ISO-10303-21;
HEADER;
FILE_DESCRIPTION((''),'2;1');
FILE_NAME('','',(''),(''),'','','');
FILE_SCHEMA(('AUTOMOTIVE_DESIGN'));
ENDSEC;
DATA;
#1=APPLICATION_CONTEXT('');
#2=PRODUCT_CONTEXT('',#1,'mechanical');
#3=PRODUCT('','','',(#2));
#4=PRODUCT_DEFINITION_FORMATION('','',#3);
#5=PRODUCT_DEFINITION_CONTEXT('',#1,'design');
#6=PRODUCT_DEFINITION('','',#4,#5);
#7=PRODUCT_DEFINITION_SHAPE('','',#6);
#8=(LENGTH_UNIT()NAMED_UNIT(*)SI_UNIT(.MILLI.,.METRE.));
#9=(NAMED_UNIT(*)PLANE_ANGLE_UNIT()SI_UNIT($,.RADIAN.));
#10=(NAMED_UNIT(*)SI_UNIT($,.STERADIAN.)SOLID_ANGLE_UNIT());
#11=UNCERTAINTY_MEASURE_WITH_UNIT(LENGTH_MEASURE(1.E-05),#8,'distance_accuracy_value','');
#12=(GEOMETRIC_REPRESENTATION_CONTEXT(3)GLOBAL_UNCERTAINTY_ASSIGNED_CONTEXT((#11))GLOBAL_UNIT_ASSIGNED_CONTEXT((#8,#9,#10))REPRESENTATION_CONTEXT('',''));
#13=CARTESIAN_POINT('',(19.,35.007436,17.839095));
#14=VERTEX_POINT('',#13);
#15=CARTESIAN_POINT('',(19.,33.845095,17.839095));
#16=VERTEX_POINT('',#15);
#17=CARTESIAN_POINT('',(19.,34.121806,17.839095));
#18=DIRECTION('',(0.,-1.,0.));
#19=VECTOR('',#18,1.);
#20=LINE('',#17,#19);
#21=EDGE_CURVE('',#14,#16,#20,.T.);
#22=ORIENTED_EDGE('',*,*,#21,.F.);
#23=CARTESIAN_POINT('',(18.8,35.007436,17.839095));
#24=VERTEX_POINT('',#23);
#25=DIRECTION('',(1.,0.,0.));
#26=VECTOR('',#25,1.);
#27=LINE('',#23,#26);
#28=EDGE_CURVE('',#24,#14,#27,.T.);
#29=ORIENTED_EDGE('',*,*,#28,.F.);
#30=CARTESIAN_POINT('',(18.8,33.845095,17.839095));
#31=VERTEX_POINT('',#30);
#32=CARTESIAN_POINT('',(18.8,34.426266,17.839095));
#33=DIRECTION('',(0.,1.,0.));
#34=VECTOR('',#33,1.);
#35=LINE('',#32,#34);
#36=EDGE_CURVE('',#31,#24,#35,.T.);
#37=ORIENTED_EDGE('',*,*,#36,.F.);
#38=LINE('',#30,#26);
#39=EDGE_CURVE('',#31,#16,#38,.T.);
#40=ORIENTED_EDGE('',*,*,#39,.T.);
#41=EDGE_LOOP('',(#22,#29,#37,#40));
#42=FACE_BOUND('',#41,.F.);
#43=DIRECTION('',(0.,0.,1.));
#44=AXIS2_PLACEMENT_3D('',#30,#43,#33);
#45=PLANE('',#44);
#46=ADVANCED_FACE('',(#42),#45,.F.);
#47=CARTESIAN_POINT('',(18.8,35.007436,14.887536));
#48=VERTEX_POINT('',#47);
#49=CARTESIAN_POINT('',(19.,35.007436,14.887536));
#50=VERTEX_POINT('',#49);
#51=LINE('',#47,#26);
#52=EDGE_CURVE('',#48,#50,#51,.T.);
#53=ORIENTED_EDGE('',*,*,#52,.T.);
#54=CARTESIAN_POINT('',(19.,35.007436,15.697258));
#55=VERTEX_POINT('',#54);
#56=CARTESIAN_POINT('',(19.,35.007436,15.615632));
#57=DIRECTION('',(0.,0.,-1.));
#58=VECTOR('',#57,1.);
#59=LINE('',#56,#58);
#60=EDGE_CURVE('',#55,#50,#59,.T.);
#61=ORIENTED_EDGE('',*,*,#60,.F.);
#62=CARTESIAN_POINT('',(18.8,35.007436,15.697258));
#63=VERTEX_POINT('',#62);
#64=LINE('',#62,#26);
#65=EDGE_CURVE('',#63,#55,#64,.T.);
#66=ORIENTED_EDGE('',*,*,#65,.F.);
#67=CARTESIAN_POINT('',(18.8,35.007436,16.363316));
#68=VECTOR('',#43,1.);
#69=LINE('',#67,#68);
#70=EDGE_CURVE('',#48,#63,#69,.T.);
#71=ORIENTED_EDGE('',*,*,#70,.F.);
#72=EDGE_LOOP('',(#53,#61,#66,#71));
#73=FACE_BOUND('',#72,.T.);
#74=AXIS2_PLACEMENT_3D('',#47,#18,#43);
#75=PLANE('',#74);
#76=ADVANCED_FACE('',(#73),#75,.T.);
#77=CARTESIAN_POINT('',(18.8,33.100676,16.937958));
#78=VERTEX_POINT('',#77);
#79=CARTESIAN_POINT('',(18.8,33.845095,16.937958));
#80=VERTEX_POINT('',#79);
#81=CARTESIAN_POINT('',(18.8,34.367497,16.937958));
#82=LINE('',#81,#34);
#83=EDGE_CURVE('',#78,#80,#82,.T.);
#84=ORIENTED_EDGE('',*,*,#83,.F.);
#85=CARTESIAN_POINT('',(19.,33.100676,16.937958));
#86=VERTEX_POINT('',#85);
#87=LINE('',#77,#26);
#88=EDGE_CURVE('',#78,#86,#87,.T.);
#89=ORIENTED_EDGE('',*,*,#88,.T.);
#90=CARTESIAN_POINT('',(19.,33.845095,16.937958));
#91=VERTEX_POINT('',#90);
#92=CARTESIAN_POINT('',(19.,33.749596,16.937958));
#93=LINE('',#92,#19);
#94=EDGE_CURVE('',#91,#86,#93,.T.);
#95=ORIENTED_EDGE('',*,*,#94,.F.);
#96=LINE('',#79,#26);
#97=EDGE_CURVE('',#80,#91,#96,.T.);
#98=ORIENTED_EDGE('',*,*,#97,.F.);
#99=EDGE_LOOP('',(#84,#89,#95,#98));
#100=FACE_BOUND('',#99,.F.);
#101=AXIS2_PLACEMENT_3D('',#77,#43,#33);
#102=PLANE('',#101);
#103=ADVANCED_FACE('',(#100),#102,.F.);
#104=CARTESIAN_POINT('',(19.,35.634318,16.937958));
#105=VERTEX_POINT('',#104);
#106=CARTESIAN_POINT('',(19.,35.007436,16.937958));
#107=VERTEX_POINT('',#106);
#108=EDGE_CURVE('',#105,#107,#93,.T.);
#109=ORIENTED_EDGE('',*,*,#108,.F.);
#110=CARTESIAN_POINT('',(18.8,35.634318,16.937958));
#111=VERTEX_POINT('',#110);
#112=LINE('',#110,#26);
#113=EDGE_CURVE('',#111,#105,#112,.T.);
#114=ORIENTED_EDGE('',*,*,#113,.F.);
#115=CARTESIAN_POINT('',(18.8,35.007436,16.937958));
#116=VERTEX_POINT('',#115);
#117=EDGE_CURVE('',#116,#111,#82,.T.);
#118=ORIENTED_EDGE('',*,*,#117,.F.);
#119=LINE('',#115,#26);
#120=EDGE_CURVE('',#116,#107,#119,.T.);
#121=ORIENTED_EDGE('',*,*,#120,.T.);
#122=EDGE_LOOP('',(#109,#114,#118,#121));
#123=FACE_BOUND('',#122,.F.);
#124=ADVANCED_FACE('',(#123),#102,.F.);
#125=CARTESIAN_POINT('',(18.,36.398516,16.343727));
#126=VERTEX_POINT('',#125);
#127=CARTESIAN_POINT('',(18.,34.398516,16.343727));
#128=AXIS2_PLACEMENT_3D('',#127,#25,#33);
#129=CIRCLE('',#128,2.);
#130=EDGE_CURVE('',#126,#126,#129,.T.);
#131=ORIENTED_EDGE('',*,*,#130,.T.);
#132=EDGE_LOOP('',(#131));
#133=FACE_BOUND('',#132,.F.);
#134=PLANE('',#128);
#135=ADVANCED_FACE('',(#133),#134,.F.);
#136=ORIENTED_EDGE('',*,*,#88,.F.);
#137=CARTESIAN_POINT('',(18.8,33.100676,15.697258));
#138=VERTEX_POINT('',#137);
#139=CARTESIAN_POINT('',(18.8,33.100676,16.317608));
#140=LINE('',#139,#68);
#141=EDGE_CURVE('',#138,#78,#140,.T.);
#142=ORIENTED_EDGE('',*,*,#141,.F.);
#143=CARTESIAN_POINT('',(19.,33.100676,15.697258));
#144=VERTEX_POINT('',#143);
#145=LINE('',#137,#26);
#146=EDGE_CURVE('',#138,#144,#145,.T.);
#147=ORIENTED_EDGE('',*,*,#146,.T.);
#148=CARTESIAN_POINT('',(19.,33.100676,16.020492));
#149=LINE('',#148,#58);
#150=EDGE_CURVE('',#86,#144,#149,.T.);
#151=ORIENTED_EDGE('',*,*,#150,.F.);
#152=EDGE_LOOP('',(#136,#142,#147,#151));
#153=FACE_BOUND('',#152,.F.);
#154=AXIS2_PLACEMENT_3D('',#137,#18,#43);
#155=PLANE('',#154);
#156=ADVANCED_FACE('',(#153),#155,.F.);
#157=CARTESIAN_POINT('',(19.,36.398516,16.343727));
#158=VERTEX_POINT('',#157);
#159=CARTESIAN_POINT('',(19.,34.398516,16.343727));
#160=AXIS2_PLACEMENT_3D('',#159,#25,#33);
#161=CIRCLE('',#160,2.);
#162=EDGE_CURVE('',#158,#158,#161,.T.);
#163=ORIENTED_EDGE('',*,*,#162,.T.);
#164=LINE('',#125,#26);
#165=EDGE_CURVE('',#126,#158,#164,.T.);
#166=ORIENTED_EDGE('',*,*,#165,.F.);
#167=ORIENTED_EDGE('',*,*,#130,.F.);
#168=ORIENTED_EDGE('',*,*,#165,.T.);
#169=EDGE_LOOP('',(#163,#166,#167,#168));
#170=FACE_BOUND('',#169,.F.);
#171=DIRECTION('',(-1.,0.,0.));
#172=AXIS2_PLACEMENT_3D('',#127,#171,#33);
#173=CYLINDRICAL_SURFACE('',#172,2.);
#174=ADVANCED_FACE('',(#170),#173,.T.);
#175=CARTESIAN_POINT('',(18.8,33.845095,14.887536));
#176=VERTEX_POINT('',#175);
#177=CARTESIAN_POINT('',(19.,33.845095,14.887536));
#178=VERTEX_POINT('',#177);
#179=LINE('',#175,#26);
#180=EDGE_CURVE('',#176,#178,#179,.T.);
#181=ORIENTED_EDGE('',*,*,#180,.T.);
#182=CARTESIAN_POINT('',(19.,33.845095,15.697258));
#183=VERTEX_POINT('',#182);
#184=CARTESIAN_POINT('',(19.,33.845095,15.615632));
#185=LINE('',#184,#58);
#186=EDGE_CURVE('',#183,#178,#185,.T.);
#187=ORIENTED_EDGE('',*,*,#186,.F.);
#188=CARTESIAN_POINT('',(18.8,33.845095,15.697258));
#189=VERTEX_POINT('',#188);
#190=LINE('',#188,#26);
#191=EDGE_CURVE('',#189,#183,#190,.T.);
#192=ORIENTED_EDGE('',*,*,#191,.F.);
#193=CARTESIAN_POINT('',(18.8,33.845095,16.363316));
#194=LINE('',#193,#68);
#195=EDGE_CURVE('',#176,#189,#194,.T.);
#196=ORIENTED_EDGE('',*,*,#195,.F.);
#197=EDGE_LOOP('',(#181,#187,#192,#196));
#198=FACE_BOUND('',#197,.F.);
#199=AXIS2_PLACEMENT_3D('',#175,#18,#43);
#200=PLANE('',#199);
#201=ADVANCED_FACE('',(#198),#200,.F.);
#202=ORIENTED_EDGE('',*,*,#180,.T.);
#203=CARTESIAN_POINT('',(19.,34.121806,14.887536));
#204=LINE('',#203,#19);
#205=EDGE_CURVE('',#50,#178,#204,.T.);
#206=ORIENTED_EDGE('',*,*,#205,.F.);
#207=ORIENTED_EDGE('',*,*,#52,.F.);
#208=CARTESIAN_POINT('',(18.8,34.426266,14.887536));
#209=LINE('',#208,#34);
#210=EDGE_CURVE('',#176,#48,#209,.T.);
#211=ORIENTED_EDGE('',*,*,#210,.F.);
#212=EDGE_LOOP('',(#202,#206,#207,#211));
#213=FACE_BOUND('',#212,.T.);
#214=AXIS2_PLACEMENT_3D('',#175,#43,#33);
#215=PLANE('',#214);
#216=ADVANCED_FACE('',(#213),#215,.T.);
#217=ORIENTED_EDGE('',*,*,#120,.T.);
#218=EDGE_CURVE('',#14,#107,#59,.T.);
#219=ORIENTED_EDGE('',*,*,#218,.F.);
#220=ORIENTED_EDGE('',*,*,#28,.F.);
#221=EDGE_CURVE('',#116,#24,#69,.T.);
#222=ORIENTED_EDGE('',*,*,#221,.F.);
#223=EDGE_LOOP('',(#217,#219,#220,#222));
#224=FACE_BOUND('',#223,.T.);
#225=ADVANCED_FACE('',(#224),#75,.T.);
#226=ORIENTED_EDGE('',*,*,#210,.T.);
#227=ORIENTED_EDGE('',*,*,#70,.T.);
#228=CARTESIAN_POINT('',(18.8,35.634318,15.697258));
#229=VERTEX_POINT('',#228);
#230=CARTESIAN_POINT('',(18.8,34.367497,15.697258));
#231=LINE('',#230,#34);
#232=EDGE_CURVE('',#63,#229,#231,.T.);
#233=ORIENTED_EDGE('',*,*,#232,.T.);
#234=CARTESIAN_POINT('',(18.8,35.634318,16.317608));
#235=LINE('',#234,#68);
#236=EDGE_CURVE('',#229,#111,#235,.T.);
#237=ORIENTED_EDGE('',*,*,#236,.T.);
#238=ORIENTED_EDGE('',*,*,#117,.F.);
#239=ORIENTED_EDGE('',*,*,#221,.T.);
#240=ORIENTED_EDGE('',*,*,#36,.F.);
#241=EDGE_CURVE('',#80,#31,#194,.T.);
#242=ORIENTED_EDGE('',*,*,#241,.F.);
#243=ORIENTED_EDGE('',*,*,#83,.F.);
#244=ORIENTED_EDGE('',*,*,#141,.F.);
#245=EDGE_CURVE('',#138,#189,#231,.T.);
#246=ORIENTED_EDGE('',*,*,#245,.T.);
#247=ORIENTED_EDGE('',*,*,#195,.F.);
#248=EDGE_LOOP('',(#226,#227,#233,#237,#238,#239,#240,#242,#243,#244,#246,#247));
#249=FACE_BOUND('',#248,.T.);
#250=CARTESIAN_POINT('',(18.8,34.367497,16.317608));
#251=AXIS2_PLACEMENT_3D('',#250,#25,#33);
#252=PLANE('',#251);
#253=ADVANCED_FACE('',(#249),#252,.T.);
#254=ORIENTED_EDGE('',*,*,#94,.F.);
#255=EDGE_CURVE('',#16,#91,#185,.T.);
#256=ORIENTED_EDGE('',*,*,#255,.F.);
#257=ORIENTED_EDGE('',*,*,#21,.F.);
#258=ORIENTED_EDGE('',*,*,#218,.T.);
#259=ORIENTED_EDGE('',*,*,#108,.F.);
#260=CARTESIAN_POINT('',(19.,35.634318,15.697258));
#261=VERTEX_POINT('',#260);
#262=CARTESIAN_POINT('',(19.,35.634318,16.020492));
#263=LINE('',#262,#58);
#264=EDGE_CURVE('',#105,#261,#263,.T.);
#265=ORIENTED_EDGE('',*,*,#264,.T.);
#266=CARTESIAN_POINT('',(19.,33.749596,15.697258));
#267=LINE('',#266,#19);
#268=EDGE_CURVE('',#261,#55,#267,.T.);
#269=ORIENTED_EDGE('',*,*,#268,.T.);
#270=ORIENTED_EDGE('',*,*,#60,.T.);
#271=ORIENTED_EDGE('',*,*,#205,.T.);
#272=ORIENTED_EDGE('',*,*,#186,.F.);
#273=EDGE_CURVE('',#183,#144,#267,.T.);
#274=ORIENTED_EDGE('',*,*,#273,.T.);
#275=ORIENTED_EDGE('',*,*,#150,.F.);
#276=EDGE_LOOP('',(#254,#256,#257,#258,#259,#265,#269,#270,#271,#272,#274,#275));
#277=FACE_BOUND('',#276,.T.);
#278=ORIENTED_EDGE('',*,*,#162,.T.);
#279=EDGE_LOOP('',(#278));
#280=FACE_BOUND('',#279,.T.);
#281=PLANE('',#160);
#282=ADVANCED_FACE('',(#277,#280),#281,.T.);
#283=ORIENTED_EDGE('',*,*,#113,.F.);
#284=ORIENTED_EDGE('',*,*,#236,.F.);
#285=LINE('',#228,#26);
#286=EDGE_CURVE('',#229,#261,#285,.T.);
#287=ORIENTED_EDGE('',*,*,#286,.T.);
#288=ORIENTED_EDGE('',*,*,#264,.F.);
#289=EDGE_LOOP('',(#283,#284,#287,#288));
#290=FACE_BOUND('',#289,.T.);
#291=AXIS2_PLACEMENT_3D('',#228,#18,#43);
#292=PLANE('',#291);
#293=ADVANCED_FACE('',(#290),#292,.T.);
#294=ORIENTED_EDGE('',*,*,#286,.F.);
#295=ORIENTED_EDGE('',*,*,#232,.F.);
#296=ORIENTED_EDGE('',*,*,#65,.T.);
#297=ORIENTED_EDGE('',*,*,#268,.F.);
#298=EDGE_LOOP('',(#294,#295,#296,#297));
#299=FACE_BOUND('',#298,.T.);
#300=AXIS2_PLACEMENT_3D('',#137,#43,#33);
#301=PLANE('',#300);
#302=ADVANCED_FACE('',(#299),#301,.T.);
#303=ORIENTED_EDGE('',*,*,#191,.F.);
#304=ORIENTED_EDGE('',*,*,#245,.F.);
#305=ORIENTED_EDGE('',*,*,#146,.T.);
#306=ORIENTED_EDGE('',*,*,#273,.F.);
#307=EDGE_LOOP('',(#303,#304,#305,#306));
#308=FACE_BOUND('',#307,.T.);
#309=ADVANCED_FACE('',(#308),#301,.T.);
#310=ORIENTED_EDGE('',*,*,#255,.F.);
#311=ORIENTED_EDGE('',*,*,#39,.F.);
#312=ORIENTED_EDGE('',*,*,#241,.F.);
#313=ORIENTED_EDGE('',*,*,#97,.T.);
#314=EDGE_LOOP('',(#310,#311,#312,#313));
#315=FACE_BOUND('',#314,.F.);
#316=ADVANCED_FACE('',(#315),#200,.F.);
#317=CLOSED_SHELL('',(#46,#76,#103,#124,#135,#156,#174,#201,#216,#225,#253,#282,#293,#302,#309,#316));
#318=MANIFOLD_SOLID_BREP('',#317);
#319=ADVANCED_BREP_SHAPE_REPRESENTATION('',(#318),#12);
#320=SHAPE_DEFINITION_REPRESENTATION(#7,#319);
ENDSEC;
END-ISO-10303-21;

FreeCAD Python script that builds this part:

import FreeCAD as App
import Part
import Sketcher

V = App.Vector

doc = App.newDocument("Part")
params = doc.addObject("Spreadsheet::Sheet", "Params")
for row, (alias, value) in enumerate([
    ("pad1_length", "0.5 mm"),
    ("pad2_length", "0.5 mm"),
    ("sketch3_diameter", "4 mm"),
    ("pad3_length", "1 mm"),
], start=1):
    params.set(f"A{row}", alias)
    params.set(f"B{row}", "=" + value)
    params.setAlias(f"B{row}", alias)

body = doc.addObject("PartDesign::Body", "Body")

sketch1 = body.newObject("Sketcher::SketchObject", "Sketch")
sketch1.AttachmentSupport = (doc.getObject("YZ_Plane"), [""])
sketch1.MapMode = "FlatFace"
sketch1.AttachmentOffset = App.Placement(V(0, 0, 1), App.Rotation())
sketch1.addGeometry(Part.LineSegment(V(-5.7, 34.8, 0), V(-5.7, 31.9, 0)), False)
sketch1.addGeometry(Part.LineSegment(V(-5.7, 31.9, 0), V(-4.5, 31.9, 0)), False)
sketch1.addGeometry(Part.LineSegment(V(-4.5, 31.9, 0), V(-4.5, 34.8, 0)), False)
sketch1.addGeometry(Part.LineSegment(V(-4.5, 34.8, 0), V(-5.7, 34.8, 0)), False)
sketch1.addConstraint(Sketcher.Constraint("Coincident", 0, 2, 1, 1))
sketch1.addConstraint(Sketcher.Constraint("Coincident", 1, 2, 2, 1))
sketch1.addConstraint(Sketcher.Constraint("Coincident", 2, 2, 3, 1))
sketch1.addConstraint(Sketcher.Constraint("Coincident", 3, 2, 0, 1))
sketch1.addConstraint(Sketcher.Constraint("Vertical", 0))
sketch1.addConstraint(Sketcher.Constraint("Horizontal", 1))
sketch1.addConstraint(Sketcher.Constraint("Vertical", 2))
sketch1.addConstraint(Sketcher.Constraint("Horizontal", 3))
sketch1.addConstraint(Sketcher.Constraint("DistanceX", 1, 1, 1, 2, 1.162341))
sketch1.addConstraint(Sketcher.Constraint("DistanceY", 0, 2, 0, 1, 2.951559))
sketch1.addConstraint(Sketcher.Constraint("DistanceX", 0, 2, -1, 1, 5.654904))
sketch1.addConstraint(Sketcher.Constraint("DistanceY", -1, 1, 0, 2, 31.887536))
pad1 = body.newObject("PartDesign::Pad", "Pad")
pad1.Profile = sketch1
pad1.setExpression("Length", "Params.pad1_length")
body2 = doc.addObject("PartDesign::Body", "Body001")
doc.recompute()

body.Placement = App.Placement(V(-0.2, 0, 0), App.Rotation(V(0, 0, 1), 0))
boolean = body2.newObject("PartDesign::Boolean", "Boolean")
boolean.Type = "Fuse"
boolean.addObjects([body])
body3 = doc.addObject("PartDesign::Body", "Body002")

sketch2 = body3.newObject("Sketcher::SketchObject", "Sketch001")
sketch2.AttachmentSupport = (doc.getObject("YZ_Plane002"), [""])
sketch2.MapMode = "FlatFace"
sketch2.AttachmentOffset = App.Placement(V(0, 0, 1), App.Rotation())
sketch2.addGeometry(Part.LineSegment(V(-6.4, 33.9, 0), V(-6.4, 32.7, 0)), False)
sketch2.addGeometry(Part.LineSegment(V(-6.4, 32.7, 0), V(-3.9, 32.7, 0)), False)
sketch2.addGeometry(Part.LineSegment(V(-3.9, 32.7, 0), V(-3.9, 33.9, 0)), False)
sketch2.addGeometry(Part.LineSegment(V(-3.9, 33.9, 0), V(-6.4, 33.9, 0)), False)
sketch2.addConstraint(Sketcher.Constraint("Coincident", 0, 2, 1, 1))
sketch2.addConstraint(Sketcher.Constraint("Coincident", 1, 2, 2, 1))
sketch2.addConstraint(Sketcher.Constraint("Coincident", 2, 2, 3, 1))
sketch2.addConstraint(Sketcher.Constraint("Coincident", 3, 2, 0, 1))
sketch2.addConstraint(Sketcher.Constraint("Vertical", 0))
sketch2.addConstraint(Sketcher.Constraint("Horizontal", 1))
sketch2.addConstraint(Sketcher.Constraint("Vertical", 2))
sketch2.addConstraint(Sketcher.Constraint("Horizontal", 3))
sketch2.addConstraint(Sketcher.Constraint("DistanceY", 0, 2, 0, 1, 1.2407))
sketch2.addConstraint(Sketcher.Constraint("DistanceX", 1, 1, 1, 2, 2.533642))
sketch2.addConstraint(Sketcher.Constraint("DistanceY", -1, 1, 2, 2, 33.937958))
sketch2.addConstraint(Sketcher.Constraint("DistanceX", 0, 2, -1, 1, 6.399324))
pad2 = body3.newObject("PartDesign::Pad", "Pad001")
pad2.Profile = sketch2
pad2.setExpression("Length", "Params.pad2_length")
body4 = doc.addObject("PartDesign::Body", "Body003")
doc.recompute()

body3.Placement = App.Placement(V(-0.2, 0, 0), App.Rotation(V(0, 0, 1), 0))
boolean2 = body4.newObject("PartDesign::Boolean", "Boolean001")
boolean2.Type = "Fuse"
boolean2.addObjects([body3])
body5 = doc.addObject("PartDesign::Body", "Body004")

sketch3 = body5.newObject("Sketcher::SketchObject", "Sketch002")
sketch3.AttachmentSupport = (doc.getObject("YZ_Plane004"), [""])
sketch3.MapMode = "FlatFace"
sketch3.addGeometry(Part.Circle(V(-5.1, 33.3, 0), V(0, 0, 1), 2), False)
sketch3.addConstraint(Sketcher.Constraint("Diameter", 0, 4.0))
sketch3.addConstraint(Sketcher.Constraint("DistanceX", 0, 3, -1, 1, 5.101484))
sketch3.addConstraint(Sketcher.Constraint("DistanceY", -1, 1, 0, 3, 33.343727))
sketch3.setExpression("Constraints[0]", "Params.sketch3_diameter")
pad3 = body5.newObject("PartDesign::Pad", "Pad002")
pad3.Profile = sketch3
pad3.setExpression("Length", "Params.pad3_length")
doc.recompute()

boolean3 = body5.newObject("PartDesign::Boolean", "Boolean002")
boolean3.Type = "Cut"
boolean3.addObjects([body4])
doc.recompute()

boolean4 = body5.newObject("PartDesign::Boolean", "Boolean003")
boolean4.Type = "Cut"
boolean4.addObjects([body2])
body6 = doc.addObject("PartDesign::Body", "Body005")
doc.recompute()

body5.Placement = App.Placement(V(18, 39.5, -17), App.Rotation(V(0, 0, 1), 0))
boolean5 = body6.newObject("PartDesign::Boolean", "Boolean004")
boolean5.Type = "Fuse"
boolean5.addObjects([body5])

doc.recompute()
